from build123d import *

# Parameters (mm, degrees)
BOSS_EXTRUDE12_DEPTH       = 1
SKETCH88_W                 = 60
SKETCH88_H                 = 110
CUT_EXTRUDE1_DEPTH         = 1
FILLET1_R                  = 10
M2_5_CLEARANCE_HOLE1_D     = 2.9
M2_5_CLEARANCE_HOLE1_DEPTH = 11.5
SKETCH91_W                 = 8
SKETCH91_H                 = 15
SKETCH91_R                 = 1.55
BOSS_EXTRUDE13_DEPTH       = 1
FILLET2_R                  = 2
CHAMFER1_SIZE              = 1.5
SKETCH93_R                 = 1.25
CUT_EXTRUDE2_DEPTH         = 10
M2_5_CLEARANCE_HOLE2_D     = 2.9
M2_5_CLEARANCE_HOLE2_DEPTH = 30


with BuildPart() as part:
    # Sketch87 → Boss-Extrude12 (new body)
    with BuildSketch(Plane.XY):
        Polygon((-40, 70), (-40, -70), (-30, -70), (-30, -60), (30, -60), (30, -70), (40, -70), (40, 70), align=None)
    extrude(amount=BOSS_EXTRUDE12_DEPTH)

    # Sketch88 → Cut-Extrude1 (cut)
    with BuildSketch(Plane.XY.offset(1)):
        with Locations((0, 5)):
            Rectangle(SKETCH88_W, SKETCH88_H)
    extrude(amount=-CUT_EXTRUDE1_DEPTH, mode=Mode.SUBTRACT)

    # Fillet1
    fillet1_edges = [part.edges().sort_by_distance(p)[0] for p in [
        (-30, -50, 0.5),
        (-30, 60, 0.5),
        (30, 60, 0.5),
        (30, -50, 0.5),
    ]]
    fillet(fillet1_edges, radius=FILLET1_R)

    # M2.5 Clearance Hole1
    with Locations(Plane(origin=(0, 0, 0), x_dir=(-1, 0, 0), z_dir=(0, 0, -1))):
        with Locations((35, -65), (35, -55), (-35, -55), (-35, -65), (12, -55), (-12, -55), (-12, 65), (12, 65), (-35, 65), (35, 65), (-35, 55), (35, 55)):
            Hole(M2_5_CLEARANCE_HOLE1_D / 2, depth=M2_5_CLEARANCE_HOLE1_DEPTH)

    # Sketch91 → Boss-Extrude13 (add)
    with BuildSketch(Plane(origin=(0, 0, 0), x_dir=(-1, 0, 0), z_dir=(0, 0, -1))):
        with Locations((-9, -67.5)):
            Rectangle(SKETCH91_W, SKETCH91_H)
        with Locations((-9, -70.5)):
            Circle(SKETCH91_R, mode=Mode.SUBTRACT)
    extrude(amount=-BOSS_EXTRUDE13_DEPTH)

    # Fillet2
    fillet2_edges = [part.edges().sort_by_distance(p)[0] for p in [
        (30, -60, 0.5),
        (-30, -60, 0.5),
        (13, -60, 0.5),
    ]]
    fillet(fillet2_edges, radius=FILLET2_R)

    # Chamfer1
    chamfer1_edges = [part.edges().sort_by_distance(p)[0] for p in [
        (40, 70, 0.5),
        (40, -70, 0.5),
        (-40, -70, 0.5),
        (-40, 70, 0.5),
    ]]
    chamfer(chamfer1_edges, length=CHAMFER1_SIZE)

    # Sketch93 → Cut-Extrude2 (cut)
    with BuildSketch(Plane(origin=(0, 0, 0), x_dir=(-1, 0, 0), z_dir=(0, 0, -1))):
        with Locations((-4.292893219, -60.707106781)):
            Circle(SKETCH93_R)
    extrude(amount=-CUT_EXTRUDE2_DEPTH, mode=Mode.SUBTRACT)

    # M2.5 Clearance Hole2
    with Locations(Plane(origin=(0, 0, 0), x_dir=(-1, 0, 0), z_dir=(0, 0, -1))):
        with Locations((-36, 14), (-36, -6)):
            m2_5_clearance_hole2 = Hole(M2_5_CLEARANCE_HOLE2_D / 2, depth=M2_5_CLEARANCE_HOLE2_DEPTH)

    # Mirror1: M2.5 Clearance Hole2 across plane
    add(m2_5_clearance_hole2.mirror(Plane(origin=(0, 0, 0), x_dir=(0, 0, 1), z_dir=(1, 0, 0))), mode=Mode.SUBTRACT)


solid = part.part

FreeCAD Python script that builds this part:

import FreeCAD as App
import Part
import Sketcher
Q = App.Units.Quantity


def edges_at(feature, points):
    """Names of the edges that pass closest to the given points."""
    edges = feature.Shape.Edges
    near = lambda p: min(range(len(edges)), key=lambda i: edges[i].distToShape(Part.Vertex(*p))[0])
    return sorted({f"Edge{near(p) + 1}" for p in points})


def add_polygon(sketch, points):
    """Adds a closed chain of lines whose ends are joined by coincident constraints."""
    first, n = sketch.GeometryCount, len(points)
    for a, b in zip(points, points[1:] + points[:1]):
        sketch.addGeometry(Part.LineSegment(App.Vector(*a, 0), App.Vector(*b, 0)), False)
    for i in range(n):
        sketch.addConstraint(Sketcher.Constraint("Coincident", first + i, 2, first + (i + 1) % n, 1))

doc = App.newDocument("Part")
body = doc.addObject("PartDesign::Body", "Body")

# Sketch on XY plane
sketch1 = doc.addObject("Sketcher::SketchObject", "Sketch")
body.addObject(sketch1)
sketch1.AttachmentSupport = (doc.XY_Plane, [""])
sketch1.MapMode = "FlatFace"
add_polygon(sketch1, [(-40, 70), (-40, -70), (-30, -70), (-30, -60), (30, -60), (30, -70), (40, -70), (40, 70)])  # lines 0-7
sketch1.addConstraint(Sketcher.Constraint("Vertical", 0))
sketch1.addConstraint(Sketcher.Constraint("Horizontal", 1))
sketch1.addConstraint(Sketcher.Constraint("Vertical", 2))
sketch1.addConstraint(Sketcher.Constraint("Horizontal", 3))
sketch1.addConstraint(Sketcher.Constraint("Vertical", 4))
sketch1.addConstraint(Sketcher.Constraint("Horizontal", 5))
sketch1.addConstraint(Sketcher.Constraint("Vertical", 6))
sketch1.addConstraint(Sketcher.Constraint("Horizontal", 7))
sketch1.addConstraint(Sketcher.Constraint("Symmetric", 0, 2, 6, 2, -1, 1))
sketch1.addConstraint(Sketcher.Constraint("Symmetric", 1, 2, 4, 2, -2))
sketch1.addConstraint(Sketcher.Constraint("Equal", 5, 2))
sketch1.addConstraint(Sketcher.Constraint("DistanceX", 1, 1, 1, 2, Q("10 mm")))
sketch1.addConstraint(Sketcher.Constraint("DistanceX", 3, 1, 3, 2, Q("60 mm")))
sketch1.addConstraint(Sketcher.Constraint("DistanceY", 0, 2, 0, 1, Q("140 mm")))
pad1 = doc.addObject("PartDesign::Pad", "Pad")
body.addObject(pad1)
pad1.Profile = sketch1
pad1.Length = 1

# Sketch on XY plane
sketch2 = doc.addObject("Sketcher::SketchObject", "Sketch001")
body.addObject(sketch2)
sketch2.AttachmentSupport = (doc.XY_Plane, [""])
sketch2.MapMode = "FlatFace"
sketch2.AttachmentOffset = App.Placement(App.Vector(0, 0, 1), App.Rotation())
add_polygon(sketch2, [(-30, 60), (-30, -50), (30, -50), (30, 60)])  # lines 0-3
sketch2.addConstraint(Sketcher.Constraint("Vertical", 0))
sketch2.addConstraint(Sketcher.Constraint("Horizontal", 1))
sketch2.addConstraint(Sketcher.Constraint("Vertical", 2))
sketch2.addConstraint(Sketcher.Constraint("Horizontal", 3))
sketch2.addConstraint(Sketcher.Constraint("DistanceX", 1, 1, 1, 2, Q("60 mm")))
sketch2.addConstraint(Sketcher.Constraint("DistanceY", 0, 2, 0, 1, Q("110 mm")))
sketch2.addConstraint(Sketcher.Constraint("DistanceX", 0, 2, -1, 1, Q("30 mm")))
sketch2.addConstraint(Sketcher.Constraint("DistanceY", 0, 2, -1, 1, Q("50 mm")))
pocket1 = doc.addObject("PartDesign::Pocket", "Pocket")
body.addObject(pocket1)
pocket1.Profile = sketch2
pocket1.Length = 1
doc.recompute()

fillet = doc.addObject("PartDesign::Fillet", "Fillet")
body.addObject(fillet)
fillet.Base = (pocket1, edges_at(pocket1, [
    (-30, -50, 0.5),
    (-30, 60, 0.5),
    (30, 60, 0.5),
    (30, -50, 0.5),
]))
fillet.Radius = 10

# Sketch on XY plane
sketch3 = doc.addObject("Sketcher::SketchObject", "Sketch002")
body.addObject(sketch3)
sketch3.AttachmentSupport = (doc.XY_Plane, [""])
sketch3.MapMode = "FlatFace"
sketch3.addGeometry(Part.Circle(App.Vector(-35, -65, 0), App.Vector(0, 0, 1), 1.4), False)
sketch3.addGeometry(Part.Circle(App.Vector(-35, -55, 0), App.Vector(0, 0, 1), 1.4), False)
sketch3.addGeometry(Part.Circle(App.Vector(35, -55, 0), App.Vector(0, 0, 1), 1.4), False)
sketch3.addGeometry(Part.Circle(App.Vector(35, -65, 0), App.Vector(0, 0, 1), 1.4), False)
sketch3.addGeometry(Part.Circle(App.Vector(-12, -55, 0), App.Vector(0, 0, 1), 1.4), False)
sketch3.addGeometry(Part.Circle(App.Vector(12, -55, 0), App.Vector(0, 0, 1), 1.4), False)
sketch3.addGeometry(Part.Circle(App.Vector(12, 65, 0), App.Vector(0, 0, 1), 1.4), False)
sketch3.addGeometry(Part.Circle(App.Vector(-12, 65, 0), App.Vector(0, 0, 1), 1.4), False)
sketch3.addGeometry(Part.Circle(App.Vector(35, 65, 0), App.Vector(0, 0, 1), 1.4), False)
sketch3.addGeometry(Part.Circle(App.Vector(-35, 65, 0), App.Vector(0, 0, 1), 1.4), False)
sketch3.addGeometry(Part.Circle(App.Vector(35, 55, 0), App.Vector(0, 0, 1), 1.4), False)
sketch3.addGeometry(Part.Circle(App.Vector(-35, 55, 0), App.Vector(0, 0, 1), 1.4), False)
sketch3.addConstraint(Sketcher.Constraint("Equal", 0, 1))
sketch3.addConstraint(Sketcher.Constraint("Equal", 1, 2))
sketch3.addConstraint(Sketcher.Constraint("Equal", 2, 3))
sketch3.addConstraint(Sketcher.Constraint("Equal", 3, 4))
sketch3.addConstraint(Sketcher.Constraint("Equal", 4, 5))
sketch3.addConstraint(Sketcher.Constraint("Equal", 5, 6))
sketch3.addConstraint(Sketcher.Constraint("Equal", 6, 7))
sketch3.addConstraint(Sketcher.Constraint("Equal", 7, 8))
sketch3.addConstraint(Sketcher.Constraint("Equal", 8, 9))
sketch3.addConstraint(Sketcher.Constraint("Equal", 9, 10))
sketch3.addConstraint(Sketcher.Constraint("Equal", 10, 11))
sketch3.addConstraint(Sketcher.Constraint("Symmetric", 0, 3, 8, 3, -1, 1))
sketch3.addConstraint(Sketcher.Constraint("Symmetric", 3, 3, 9, 3, -1, 1))
sketch3.addConstraint(Sketcher.Constraint("Symmetric", 1, 3, 10, 3, -1, 1))
sketch3.addConstraint(Sketcher.Constraint("Symmetric", 2, 3, 11, 3, -1, 1))
sketch3.addConstraint(Sketcher.Constraint("Symmetric", 1, 3, 2, 3, -2))
sketch3.addConstraint(Sketcher.Constraint("Symmetric", 0, 3, 3, 3, -2))
sketch3.addConstraint(Sketcher.Constraint("Symmetric", 4, 3, 5, 3, -2))
sketch3.addConstraint(Sketcher.Constraint("Symmetric", 6, 3, 7, 3, -2))
sketch3.addConstraint(Sketcher.Constraint("Horizontal", 2, 3, 4, 3))
sketch3.addConstraint(Sketcher.Constraint("Horizontal", 7, 3, 8, 3))
sketch3.addConstraint(Sketcher.Constraint("Vertical", 0, 3, 1, 3))
sketch3.addConstraint(Sketcher.Constraint("Vertical", 5, 3, 6, 3))
sketch3.addConstraint(Sketcher.Constraint("Diameter", 0, Q("2.9 mm")))
sketch3.addConstraint(Sketcher.Constraint("DistanceX", 0, 3, -1, 1, Q("35 mm")))
sketch3.addConstraint(Sketcher.Constraint("DistanceY", 0, 3, -1, 1, Q("65 mm")))
sketch3.addConstraint(Sketcher.Constraint("DistanceY", 1, 3, -1, 1, Q("55 mm")))
sketch3.addConstraint(Sketcher.Constraint("DistanceX", 4, 3, -1, 1, Q("12 mm")))
doc.recompute()
hole = doc.addObject("PartDesign::Hole", "Hole")
body.addObject(hole)
hole.Profile = sketch3
hole.ThreadType = "None"
hole.Diameter = 2.9
hole.DepthType = "Dimension"
hole.Depth = 11.5
hole.DrillPoint = "Flat"
hole.Reversed = True

# Sketch on XY plane
sketch4 = doc.addObject("Sketcher::SketchObject", "Sketch003")
body.addObject(sketch4)
sketch4.AttachmentSupport = (doc.XY_Plane, [""])
sketch4.MapMode = "FlatFace"
add_polygon(sketch4, [(13, -60), (13, -75), (5, -75), (5, -60)])  # lines 0-3
sketch4.addGeometry(Part.Circle(App.Vector(9, -70.5, 0), App.Vector(0, 0, 1), 1.6), False)  # 4
sketch4.addConstraint(Sketcher.Constraint("Vertical", 0))
sketch4.addConstraint(Sketcher.Constraint("Horizontal", 1))
sketch4.addConstraint(Sketcher.Constraint("Vertical", 2))
sketch4.addConstraint(Sketcher.Constraint("Horizontal", 3))
sketch4.addConstraint(Sketcher.Constraint("Diameter", 4, Q("3.1 mm")))
sketch4.addConstraint(Sketcher.Constraint("DistanceX", 1, 2, 1, 1, Q("8 mm")))
sketch4.addConstraint(Sketcher.Constraint("DistanceY", 0, 2, 0, 1, Q("15 mm")))
sketch4.addConstraint(Sketcher.Constraint("DistanceX", -1, 1, 4, 3, Q("9 mm")))
sketch4.addConstraint(Sketcher.Constraint("DistanceX", -1, 1, 0, 2, Q("13 mm")))
sketch4.addConstraint(Sketcher.Constraint("DistanceY", 0, 2, -1, 1, Q("75 mm")))
sketch4.addConstraint(Sketcher.Constraint("DistanceY", 4, 3, -1, 1, Q("70.5 mm")))
pad2 = doc.addObject("PartDesign::Pad", "Pad001")
body.addObject(pad2)
pad2.Profile = sketch4
pad2.Length = 1
doc.recompute()

fillet2 = doc.addObject("PartDesign::Fillet", "Fillet001")
body.addObject(fillet2)
fillet2.Base = (pad2, edges_at(pad2, [(30, -60, 0.5), (-30, -60, 0.5), (13, -60, 0.5)]))
fillet2.Radius = 2
doc.recompute()

chamfer = doc.addObject("PartDesign::Chamfer", "Chamfer")
body.addObject(chamfer)
chamfer.Base = (fillet2, edges_at(fillet2, [
    (40, 70, 0.5),
    (40, -70, 0.5),
    (-40, -70, 0.5),
    (-40, 70, 0.5),
]))
chamfer.Size = 1.5

# Sketch on XY plane
sketch5 = doc.addObject("Sketcher::SketchObject", "Sketch004")
body.addObject(sketch5)
sketch5.AttachmentSupport = (doc.XY_Plane, [""])
sketch5.MapMode = "FlatFace"
sketch5.addGeometry(Part.Circle(App.Vector(4.3, -60.7, 0), App.Vector(0, 0, 1), 1.2), False)
sketch5.addConstraint(Sketcher.Constraint("Diameter", 0, Q("2.5 mm")))
sketch5.addConstraint(Sketcher.Constraint("DistanceX", -1, 1, 0, 3, Q("4.292893 mm")))
sketch5.addConstraint(Sketcher.Constraint("DistanceY", 0, 3, -1, 1, Q("60.707107 mm")))
pocket2 = doc.addObject("PartDesign::Pocket", "Pocket001")
body.addObject(pocket2)
pocket2.Profile = sketch5
pocket2.Length = 10
pocket2.Reversed = True

# Sketch on XY plane
sketch6 = doc.addObject("Sketcher::SketchObject", "Sketch005")
body.addObject(sketch6)
sketch6.AttachmentSupport = (doc.XY_Plane, [""])
sketch6.MapMode = "FlatFace"
sketch6.addGeometry(Part.Circle(App.Vector(36, 14, 0), App.Vector(0, 0, 1), 1.4), False)
sketch6.addGeometry(Part.Circle(App.Vector(36, -6, 0), App.Vector(0, 0, 1), 1.4), False)
sketch6.addConstraint(Sketcher.Constraint("Equal", 0, 1))
sketch6.addConstraint(Sketcher.Constraint("Vertical", 0, 3, 1, 3))
sketch6.addConstraint(Sketcher.Constraint("Diameter", 0, Q("2.9 mm")))
sketch6.addConstraint(Sketcher.Constraint("DistanceX", -1, 1, 0, 3, Q("36 mm")))
sketch6.addConstraint(Sketcher.Constraint("DistanceY", -1, 1, 0, 3, Q("14 mm")))
sketch6.addConstraint(Sketcher.Constraint("DistanceY", 1, 3, -1, 1, Q("6 mm")))
doc.recompute()
hole2 = doc.addObject("PartDesign::Hole", "Hole001")
body.addObject(hole2)
hole2.Profile = sketch6
hole2.ThreadType = "None"
hole2.Diameter = 2.9
hole2.DepthType = "Dimension"
hole2.Depth = 30
hole2.DrillPoint = "Flat"
hole2.Reversed = True
doc.recompute()

mirrored = doc.addObject("PartDesign::Mirrored", "Mirrored")
body.addObject(mirrored)
mirrored.Originals = [hole2]
mirrored.MirrorPlane = (doc.YZ_Plane, [""])
body.Tip = mirrored

doc.recompute()
